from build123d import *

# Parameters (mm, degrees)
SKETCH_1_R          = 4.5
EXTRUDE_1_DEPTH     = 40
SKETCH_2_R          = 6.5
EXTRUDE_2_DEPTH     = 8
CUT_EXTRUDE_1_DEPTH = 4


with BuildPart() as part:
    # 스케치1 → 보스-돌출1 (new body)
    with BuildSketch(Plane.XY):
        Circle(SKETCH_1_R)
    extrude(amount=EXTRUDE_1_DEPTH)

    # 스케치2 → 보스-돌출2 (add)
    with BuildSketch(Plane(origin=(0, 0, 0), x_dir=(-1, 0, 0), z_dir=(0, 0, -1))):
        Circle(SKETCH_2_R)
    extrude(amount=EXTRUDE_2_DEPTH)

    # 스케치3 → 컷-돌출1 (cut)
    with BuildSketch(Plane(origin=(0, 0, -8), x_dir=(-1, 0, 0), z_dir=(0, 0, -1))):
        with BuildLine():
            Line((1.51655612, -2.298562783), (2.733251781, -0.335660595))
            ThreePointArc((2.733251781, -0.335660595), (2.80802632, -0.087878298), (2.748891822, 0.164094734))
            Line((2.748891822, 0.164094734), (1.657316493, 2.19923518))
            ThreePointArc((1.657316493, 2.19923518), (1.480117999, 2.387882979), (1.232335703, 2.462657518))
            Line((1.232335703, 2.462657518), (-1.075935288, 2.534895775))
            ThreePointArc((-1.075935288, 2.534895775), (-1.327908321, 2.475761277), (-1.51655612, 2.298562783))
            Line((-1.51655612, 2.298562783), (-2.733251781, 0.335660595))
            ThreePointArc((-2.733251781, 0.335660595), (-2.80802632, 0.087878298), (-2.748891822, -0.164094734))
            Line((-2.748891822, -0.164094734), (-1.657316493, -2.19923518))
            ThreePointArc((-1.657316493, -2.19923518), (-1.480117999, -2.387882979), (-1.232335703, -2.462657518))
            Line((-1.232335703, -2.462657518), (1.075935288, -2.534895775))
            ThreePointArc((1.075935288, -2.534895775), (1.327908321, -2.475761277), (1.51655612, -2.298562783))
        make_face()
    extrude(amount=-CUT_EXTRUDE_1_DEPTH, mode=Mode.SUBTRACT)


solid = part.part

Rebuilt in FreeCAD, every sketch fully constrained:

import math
import FreeCAD as App
import Part
import Sketcher

V = App.Vector

doc = App.newDocument("Part")
params = doc.addObject("Spreadsheet::Sheet", "Params")
for row, (alias, value) in enumerate([
    ("sketch1_diameter", "9 mm"),
    ("pad1_length", "40 mm"),
    ("sketch2_diameter", "13 mm"),
    ("pad2_length", "8 mm"),
    ("sketch3_radius", "0.5 mm"),
    ("pocket1_length", "4 mm"),
], start=1):
    params.set(f"A{row}", alias)
    params.set(f"B{row}", "=" + value)
    params.setAlias(f"B{row}", alias)

body = doc.addObject("PartDesign::Body", "Body")

sketch1 = body.newObject("Sketcher::SketchObject", "Sketch")
sketch1.AttachmentSupport = (doc.getObject("XY_Plane"), [""])
sketch1.MapMode = "FlatFace"
sketch1.addGeometry(Part.Circle(V(0, 0, 0), V(0, 0, 1), 4.5), False)
sketch1.addConstraint([
    Sketcher.Constraint("Coincident", 0, 3, -1, 1),
    Sketcher.Constraint("Diameter", 0, 9.0),
])
sketch1.setExpression("Constraints[1]", "Params.sketch1_diameter")
pad1 = body.newObject("PartDesign::Pad", "Pad")
pad1.Profile = sketch1
pad1.setExpression("Length", "Params.pad1_length")

sketch2 = body.newObject("Sketcher::SketchObject", "Sketch001")
sketch2.AttachmentSupport = (doc.getObject("XY_Plane"), [""])
sketch2.MapMode = "FlatFace"
sketch2.addGeometry(Part.Circle(V(0, 0, 0), V(0, 0, 1), 6), False)
sketch2.addConstraint([
    Sketcher.Constraint("Coincident", 0, 3, -1, 1),
    Sketcher.Constraint("Diameter", 0, 13.0),
])
sketch2.setExpression("Constraints[1]", "Params.sketch2_diameter")
pad2 = body.newObject("PartDesign::Pad", "Pad001")
pad2.Profile = sketch2
pad2.setExpression("Length", "Params.pad2_length")
pad2.Reversed = True

sketch3 = body.newObject("Sketcher::SketchObject", "Sketch002")
sketch3.AttachmentSupport = (doc.getObject("XY_Plane"), [""])
sketch3.MapMode = "FlatFace"
sketch3.AttachmentOffset = App.Placement(V(0, 0, -8), App.Rotation())
sketch3.addGeometry([
    Part.LineSegment(V(-1.52, -2.3, 0), V(-2.73, -0.34, 0)),
    Part.ArcOfCircle(Part.Circle(V(-2.31, -0.07, 0), V(0, 0, 1), 0.5), math.radians(152), math.radians(212)),
    Part.LineSegment(V(-2.75, 0.16, 0), V(-1.66, 2.2, 0)),
    Part.ArcOfCircle(Part.Circle(V(-1.22, 1.96, 0), V(0, 0, 1), 0.5), math.radians(92), math.radians(152)),
    Part.LineSegment(V(-1.23, 2.46, 0), V(1.08, 2.53, 0)),
    Part.ArcOfCircle(Part.Circle(V(1.09, 2.04, 0), V(0, 0, 1), 0.5), math.radians(32), math.radians(92)),
    Part.LineSegment(V(1.52, 2.3, 0), V(2.73, 0.34, 0)),
    Part.ArcOfCircle(Part.Circle(V(2.31, 0.07, 0), V(0, 0, 1), 0.5), math.radians(-28), math.radians(32)),
    Part.LineSegment(V(2.75, -0.16, 0), V(1.66, -2.2, 0)),
    Part.ArcOfCircle(Part.Circle(V(1.22, -1.96, 0), V(0, 0, 1), 0.5), math.radians(-88), math.radians(-28)),
    Part.LineSegment(V(1.23, -2.46, 0), V(-1.08, -2.53, 0)),
    Part.ArcOfCircle(Part.Circle(V(-1.09, -2.04, 0), V(0, 0, 1), 0.5), math.radians(-148), math.radians(-88)),
], False)
sketch3.addConstraint([
    Sketcher.Constraint("Tangent", 0, 2, 1, 2),
    Sketcher.Constraint("Tangent", 1, 1, 2, 1),
    Sketcher.Constraint("Tangent", 2, 2, 3, 2),
    Sketcher.Constraint("Tangent", 3, 1, 4, 1),
    Sketcher.Constraint("Tangent", 4, 2, 5, 2),
    Sketcher.Constraint("Tangent", 5, 1, 6, 1),
    Sketcher.Constraint("Tangent", 6, 2, 7, 2),
    Sketcher.Constraint("Tangent", 7, 1, 8, 1),
    Sketcher.Constraint("Tangent", 8, 2, 9, 2),
    Sketcher.Constraint("Tangent", 9, 1, 10, 1),
    Sketcher.Constraint("Tangent", 10, 2, 11, 2),
    Sketcher.Constraint("Tangent", 11, 1, 0, 1),
    Sketcher.Constraint("Equal", 1, 3),
    Sketcher.Constraint("Equal", 3, 5),
    Sketcher.Constraint("Equal", 5, 7),
    Sketcher.Constraint("Equal", 7, 9),
    Sketcher.Constraint("Equal", 9, 11),
    Sketcher.Constraint("Symmetric", 1, 3, 7, 3, -1, 1),
    Sketcher.Constraint("Symmetric", 3, 3, 9, 3, -1, 1),
    Sketcher.Constraint("Symmetric", 5, 3, 11, 3, -1, 1),
    Sketcher.Constraint("Equal", 0, 2),
    Sketcher.Constraint("Equal", 2, 4),
    Sketcher.Constraint("Radius", 1, 0.5),
    Sketcher.Constraint("Distance", 0, 2.309401),
    Sketcher.Constraint("DistanceY", 0, 2, 5, 3, 2.370801),
    Sketcher.Constraint("DistanceX", 1, 3, -1, 1, 2.308271),
    Sketcher.Constraint("DistanceY", 1, 3, -1, 1, 0.072238),
])
sketch3.setExpression("Constraints[22]", "Params.sketch3_radius")
pocket1 = body.newObject("PartDesign::Pocket", "Pocket")
pocket1.Profile = sketch3
pocket1.setExpression("Length", "Params.pocket1_length")
pocket1.Reversed = True

doc.recompute()
